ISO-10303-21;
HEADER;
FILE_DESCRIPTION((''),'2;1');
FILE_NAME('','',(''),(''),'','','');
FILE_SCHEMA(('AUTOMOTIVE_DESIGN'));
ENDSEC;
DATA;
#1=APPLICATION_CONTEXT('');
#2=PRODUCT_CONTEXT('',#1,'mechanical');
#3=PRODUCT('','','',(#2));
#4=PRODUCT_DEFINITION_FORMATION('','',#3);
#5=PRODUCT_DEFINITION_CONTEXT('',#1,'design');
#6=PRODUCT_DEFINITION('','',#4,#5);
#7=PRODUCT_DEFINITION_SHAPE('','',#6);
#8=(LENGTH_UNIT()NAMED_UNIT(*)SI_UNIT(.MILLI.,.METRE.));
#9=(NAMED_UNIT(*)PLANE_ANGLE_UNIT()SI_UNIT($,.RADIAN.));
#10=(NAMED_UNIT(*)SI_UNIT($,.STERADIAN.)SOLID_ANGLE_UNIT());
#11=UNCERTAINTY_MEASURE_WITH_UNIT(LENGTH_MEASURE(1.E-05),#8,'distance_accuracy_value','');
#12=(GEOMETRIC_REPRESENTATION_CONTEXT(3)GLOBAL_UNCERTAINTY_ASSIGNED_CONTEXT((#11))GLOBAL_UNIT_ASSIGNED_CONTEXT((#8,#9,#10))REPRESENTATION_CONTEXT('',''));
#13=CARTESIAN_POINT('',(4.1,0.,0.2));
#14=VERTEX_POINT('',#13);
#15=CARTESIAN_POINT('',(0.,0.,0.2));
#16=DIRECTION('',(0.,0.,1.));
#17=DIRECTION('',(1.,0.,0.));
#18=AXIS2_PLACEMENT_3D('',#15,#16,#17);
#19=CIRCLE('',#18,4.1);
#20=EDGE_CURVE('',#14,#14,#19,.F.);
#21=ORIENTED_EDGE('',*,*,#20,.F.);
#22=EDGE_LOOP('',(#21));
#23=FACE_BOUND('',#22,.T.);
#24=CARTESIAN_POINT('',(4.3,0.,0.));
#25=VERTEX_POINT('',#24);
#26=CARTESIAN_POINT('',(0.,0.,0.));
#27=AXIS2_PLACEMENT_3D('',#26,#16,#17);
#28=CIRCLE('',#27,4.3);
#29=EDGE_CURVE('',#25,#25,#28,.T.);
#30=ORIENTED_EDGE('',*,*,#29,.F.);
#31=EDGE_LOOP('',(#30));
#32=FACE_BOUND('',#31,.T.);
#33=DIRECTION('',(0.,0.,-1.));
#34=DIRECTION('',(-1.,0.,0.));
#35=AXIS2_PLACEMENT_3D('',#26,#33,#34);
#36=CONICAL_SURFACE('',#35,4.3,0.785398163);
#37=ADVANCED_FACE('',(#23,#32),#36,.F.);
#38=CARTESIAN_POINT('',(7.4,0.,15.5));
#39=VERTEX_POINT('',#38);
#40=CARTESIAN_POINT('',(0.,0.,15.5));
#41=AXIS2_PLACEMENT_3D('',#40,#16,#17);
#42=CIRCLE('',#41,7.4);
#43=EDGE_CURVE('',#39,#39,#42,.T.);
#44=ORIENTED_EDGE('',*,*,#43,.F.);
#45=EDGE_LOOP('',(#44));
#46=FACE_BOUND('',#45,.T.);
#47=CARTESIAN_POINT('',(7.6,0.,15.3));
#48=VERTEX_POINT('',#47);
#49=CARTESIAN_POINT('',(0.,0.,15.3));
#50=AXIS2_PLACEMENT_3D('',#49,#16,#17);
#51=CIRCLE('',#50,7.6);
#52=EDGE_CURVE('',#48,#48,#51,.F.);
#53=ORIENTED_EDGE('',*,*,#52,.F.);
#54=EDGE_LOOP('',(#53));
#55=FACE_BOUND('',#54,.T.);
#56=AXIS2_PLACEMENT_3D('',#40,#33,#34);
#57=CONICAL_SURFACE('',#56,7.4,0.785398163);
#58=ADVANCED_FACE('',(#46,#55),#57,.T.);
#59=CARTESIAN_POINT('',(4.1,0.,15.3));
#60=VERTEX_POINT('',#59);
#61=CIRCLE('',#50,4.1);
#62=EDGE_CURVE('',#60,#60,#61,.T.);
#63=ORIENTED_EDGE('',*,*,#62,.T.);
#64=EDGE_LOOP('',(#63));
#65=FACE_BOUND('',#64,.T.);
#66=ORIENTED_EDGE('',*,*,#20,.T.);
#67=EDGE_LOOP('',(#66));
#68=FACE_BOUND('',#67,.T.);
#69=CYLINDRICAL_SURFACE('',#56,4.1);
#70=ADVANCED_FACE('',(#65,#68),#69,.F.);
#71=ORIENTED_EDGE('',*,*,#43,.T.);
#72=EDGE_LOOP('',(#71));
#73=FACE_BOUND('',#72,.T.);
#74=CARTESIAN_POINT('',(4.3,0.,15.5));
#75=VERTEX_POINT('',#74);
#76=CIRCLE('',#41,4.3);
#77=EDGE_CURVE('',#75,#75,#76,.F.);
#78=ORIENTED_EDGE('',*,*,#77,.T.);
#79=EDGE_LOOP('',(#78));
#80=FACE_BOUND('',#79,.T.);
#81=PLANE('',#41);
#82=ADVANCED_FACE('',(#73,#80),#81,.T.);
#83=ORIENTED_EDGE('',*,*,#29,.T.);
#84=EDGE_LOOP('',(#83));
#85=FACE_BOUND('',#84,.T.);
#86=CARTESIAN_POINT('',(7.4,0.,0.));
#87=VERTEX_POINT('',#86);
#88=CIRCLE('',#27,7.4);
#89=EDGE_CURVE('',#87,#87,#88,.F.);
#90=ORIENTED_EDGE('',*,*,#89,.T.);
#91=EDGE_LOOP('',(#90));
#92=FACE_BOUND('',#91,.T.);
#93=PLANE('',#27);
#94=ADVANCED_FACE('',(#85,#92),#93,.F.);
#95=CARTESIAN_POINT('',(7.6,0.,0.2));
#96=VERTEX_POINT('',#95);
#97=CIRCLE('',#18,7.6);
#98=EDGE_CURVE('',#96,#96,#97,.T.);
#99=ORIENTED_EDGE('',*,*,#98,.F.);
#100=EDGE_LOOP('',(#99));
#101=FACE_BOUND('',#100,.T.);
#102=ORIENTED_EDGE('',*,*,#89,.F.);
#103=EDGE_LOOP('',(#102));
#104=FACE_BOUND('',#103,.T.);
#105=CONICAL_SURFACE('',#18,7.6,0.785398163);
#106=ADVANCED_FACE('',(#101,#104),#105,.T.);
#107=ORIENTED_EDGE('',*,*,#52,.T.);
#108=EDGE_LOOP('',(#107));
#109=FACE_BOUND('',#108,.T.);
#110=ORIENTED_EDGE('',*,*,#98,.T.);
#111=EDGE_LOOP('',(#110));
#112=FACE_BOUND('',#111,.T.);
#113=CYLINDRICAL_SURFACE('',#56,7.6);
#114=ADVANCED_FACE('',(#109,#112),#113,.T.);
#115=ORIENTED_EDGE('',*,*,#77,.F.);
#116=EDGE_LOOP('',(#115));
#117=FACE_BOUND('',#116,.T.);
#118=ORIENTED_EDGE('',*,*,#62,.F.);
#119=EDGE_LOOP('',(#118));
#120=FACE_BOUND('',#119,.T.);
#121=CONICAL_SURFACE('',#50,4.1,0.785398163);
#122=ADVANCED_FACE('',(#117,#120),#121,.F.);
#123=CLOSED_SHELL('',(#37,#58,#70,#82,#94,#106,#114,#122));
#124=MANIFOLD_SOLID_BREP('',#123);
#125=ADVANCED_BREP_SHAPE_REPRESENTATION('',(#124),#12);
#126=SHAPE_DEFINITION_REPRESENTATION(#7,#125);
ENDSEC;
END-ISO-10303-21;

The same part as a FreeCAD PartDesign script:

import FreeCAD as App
import Part
import Sketcher

V = App.Vector
Q = App.Units.Quantity


def edges_at(feature, points):
    """Names of the edges that pass closest to the given points."""
    edges = feature.Shape.Edges
    near = lambda p: min(range(len(edges)), key=lambda i: edges[i].distToShape(Part.Vertex(*p))[0])
    return sorted({f"Edge{near(p) + 1}" for p in points})

doc = App.newDocument("Part")
params = doc.addObject("Spreadsheet::Sheet", "Params")
for row, (alias, value) in enumerate([
    ("sketch1_diameter", "15.2 mm"),
    ("sketch1_diameter2", "8.2 mm"),
    ("pad1_length", "15.5 mm"),
    ("chamfer_size", "0.2 mm"),
], start=1):
    params.set(f"A{row}", alias)
    params.set(f"B{row}", "=" + value)
    params.setAlias(f"B{row}", alias)

body = doc.addObject("PartDesign::Body", "Body")

# Sketch on XY plane
sketch1 = body.newObject("Sketcher::SketchObject", "Sketch")
sketch1.AttachmentSupport = (doc.getObject("XY_Plane"), [""])
sketch1.MapMode = "FlatFace"
sketch1.addGeometry([
    Part.Circle(V(0, 0, 0), V(0, 0, 1), 7.6),
    Part.Circle(V(0, 0, 0), V(0, 0, 1), 4.1),
], False)
sketch1.addConstraint([
    Sketcher.Constraint("Coincident", 0, 3, -1, 1),
    Sketcher.Constraint("Coincident", 1, 3, -1, 1),
    Sketcher.Constraint("Diameter", 0, Q("15.2 mm")),
    Sketcher.Constraint("Diameter", 1, Q("8.2 mm")),
])
sketch1.setExpression("Constraints[2]", "Params.sketch1_diameter")
sketch1.setExpression("Constraints[3]", "Params.sketch1_diameter2")
pad1 = body.newObject("PartDesign::Pad", "Pad")
pad1.Profile = sketch1
pad1.setExpression("Length", "Params.pad1_length")
doc.recompute()

chamfer = body.newObject("PartDesign::Chamfer", "Chamfer")
chamfer.Base = (pad1, edges_at(pad1, [
    (-7.6, 0, 0),
    (-7.6, 0, 15.5),
    (-4.1, 0, 0),
    (-4.1, 0, 15.5),
]))
chamfer.setExpression("Size", "Params.chamfer_size")

doc.recompute()
